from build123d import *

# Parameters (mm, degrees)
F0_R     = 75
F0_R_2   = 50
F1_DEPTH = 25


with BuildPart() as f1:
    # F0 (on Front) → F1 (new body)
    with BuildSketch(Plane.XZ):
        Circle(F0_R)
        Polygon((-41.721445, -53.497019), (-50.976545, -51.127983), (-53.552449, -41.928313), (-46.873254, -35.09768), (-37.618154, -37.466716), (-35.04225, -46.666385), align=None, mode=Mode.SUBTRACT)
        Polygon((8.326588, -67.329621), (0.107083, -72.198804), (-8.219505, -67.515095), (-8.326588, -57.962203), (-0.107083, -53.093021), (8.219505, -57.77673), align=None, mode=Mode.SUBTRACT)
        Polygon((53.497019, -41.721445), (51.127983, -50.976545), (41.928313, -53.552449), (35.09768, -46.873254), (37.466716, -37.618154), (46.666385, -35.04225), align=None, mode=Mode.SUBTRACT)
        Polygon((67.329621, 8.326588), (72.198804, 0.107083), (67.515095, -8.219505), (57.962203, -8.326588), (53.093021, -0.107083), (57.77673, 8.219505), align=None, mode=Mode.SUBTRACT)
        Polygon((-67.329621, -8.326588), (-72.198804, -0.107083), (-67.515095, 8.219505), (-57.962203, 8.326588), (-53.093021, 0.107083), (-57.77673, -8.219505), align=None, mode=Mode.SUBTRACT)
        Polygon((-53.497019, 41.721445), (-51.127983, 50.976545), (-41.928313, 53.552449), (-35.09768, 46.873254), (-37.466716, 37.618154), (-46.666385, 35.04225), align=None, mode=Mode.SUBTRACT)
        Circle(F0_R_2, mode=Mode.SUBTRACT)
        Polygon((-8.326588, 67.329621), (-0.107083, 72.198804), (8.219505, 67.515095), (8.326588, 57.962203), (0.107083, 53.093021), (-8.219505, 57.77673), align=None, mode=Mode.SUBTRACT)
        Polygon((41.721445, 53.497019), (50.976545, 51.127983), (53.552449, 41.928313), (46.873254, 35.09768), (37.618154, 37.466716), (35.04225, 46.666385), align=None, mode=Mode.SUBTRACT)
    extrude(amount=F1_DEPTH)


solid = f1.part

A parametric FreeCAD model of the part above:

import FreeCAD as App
import Part
import Sketcher

V = App.Vector
Q = App.Units.Quantity

doc = App.newDocument("Part")
body = doc.addObject("PartDesign::Body", "Body")

# Sketch on XZ plane
sketch1 = doc.addObject("Sketcher::SketchObject", "Sketch")
body.addObject(sketch1)
sketch1.AttachmentSupport = (doc.XZ_Plane, [""])
sketch1.MapMode = "FlatFace"
sketch1.addGeometry(Part.Circle(V(0, 0, 0), V(0, 0, 1), 75), False)
sketch1.addGeometry(Part.LineSegment(V(-35.04225, -46.666385, 0), V(-41.721445, -53.497019, 0)), False)
sketch1.addGeometry(Part.LineSegment(V(-41.721445, -53.497019, 0), V(-50.976545, -51.127983, 0)), False)
sketch1.addGeometry(Part.LineSegment(V(-50.976545, -51.127983, 0), V(-53.552449, -41.928313, 0)), False)
sketch1.addGeometry(Part.LineSegment(V(-53.552449, -41.928313, 0), V(-46.873254, -35.09768, 0)), False)
sketch1.addGeometry(Part.LineSegment(V(-46.873254, -35.09768, 0), V(-37.618154, -37.466716, 0)), False)
sketch1.addGeometry(Part.LineSegment(V(-37.618154, -37.466716, 0), V(-35.04225, -46.666385, 0)), False)
sketch1.addGeometry(Part.LineSegment(V(8.219505, -57.77673, 0), V(8.326588, -67.329621, 0)), False)
sketch1.addGeometry(Part.LineSegment(V(8.326588, -67.329621, 0), V(0.107083, -72.198804, 0)), False)
sketch1.addGeometry(Part.LineSegment(V(0.107083, -72.198804, 0), V(-8.219505, -67.515095, 0)), False)
sketch1.addGeometry(Part.LineSegment(V(-8.219505, -67.515095, 0), V(-8.326588, -57.962203, 0)), False)
sketch1.addGeometry(Part.LineSegment(V(-8.326588, -57.962203, 0), V(-0.107083, -53.093021, 0)), False)
sketch1.addGeometry(Part.LineSegment(V(-0.107083, -53.093021, 0), V(8.219505, -57.77673, 0)), False)
sketch1.addGeometry(Part.LineSegment(V(46.666385, -35.04225, 0), V(53.497019, -41.721445, 0)), False)
sketch1.addGeometry(Part.LineSegment(V(53.497019, -41.721445, 0), V(51.127983, -50.976545, 0)), False)
sketch1.addGeometry(Part.LineSegment(V(51.127983, -50.976545, 0), V(41.928313, -53.552449, 0)), False)
sketch1.addGeometry(Part.LineSegment(V(41.928313, -53.552449, 0), V(35.09768, -46.873254, 0)), False)
sketch1.addGeometry(Part.LineSegment(V(35.09768, -46.873254, 0), V(37.466716, -37.618154, 0)), False)
sketch1.addGeometry(Part.LineSegment(V(37.466716, -37.618154, 0), V(46.666385, -35.04225, 0)), False)
sketch1.addGeometry(Part.LineSegment(V(-57.77673, -8.219505, 0), V(-67.329621, -8.326588, 0)), False)
sketch1.addGeometry(Part.LineSegment(V(-67.329621, -8.326588, 0), V(-72.198804, -0.107083, 0)), False)
sketch1.addGeometry(Part.LineSegment(V(-72.198804, -0.107083, 0), V(-67.515095, 8.219505, 0)), False)
sketch1.addGeometry(Part.LineSegment(V(-67.515095, 8.219505, 0), V(-57.962203, 8.326588, 0)), False)
sketch1.addGeometry(Part.LineSegment(V(-57.962203, 8.326588, 0), V(-53.093021, 0.107083, 0)), False)
sketch1.addGeometry(Part.LineSegment(V(-53.093021, 0.107083, 0), V(-57.77673, -8.219505, 0)), False)
sketch1.addGeometry(Part.LineSegment(V(-46.666385, 35.04225, 0), V(-53.497019, 41.721445, 0)), False)
sketch1.addGeometry(Part.LineSegment(V(-53.497019, 41.721445, 0), V(-51.127983, 50.976545, 0)), False)
sketch1.addGeometry(Part.LineSegment(V(-51.127983, 50.976545, 0), V(-41.928313, 53.552449, 0)), False)
sketch1.addGeometry(Part.LineSegment(V(-41.928313, 53.552449, 0), V(-35.09768, 46.873254, 0)), False)
sketch1.addGeometry(Part.LineSegment(V(-35.09768, 46.873254, 0), V(-37.466716, 37.618154, 0)), False)
sketch1.addGeometry(Part.LineSegment(V(-37.466716, 37.618154, 0), V(-46.666385, 35.04225, 0)), False)
sketch1.addGeometry(Part.Circle(V(0, 0, 0), V(0, 0, 1), 50), False)
sketch1.addGeometry(Part.LineSegment(V(57.77673, 8.219505, 0), V(67.329621, 8.326588, 0)), False)
sketch1.addGeometry(Part.LineSegment(V(67.329621, 8.326588, 0), V(72.198804, 0.107083, 0)), False)
sketch1.addGeometry(Part.LineSegment(V(72.198804, 0.107083, 0), V(67.515095, -8.219505, 0)), False)
sketch1.addGeometry(Part.LineSegment(V(67.515095, -8.219505, 0), V(57.962203, -8.326588, 0)), False)
sketch1.addGeometry(Part.LineSegment(V(57.962203, -8.326588, 0), V(53.093021, -0.107083, 0)), False)
sketch1.addGeometry(Part.LineSegment(V(53.093021, -0.107083, 0), V(57.77673, 8.219505, 0)), False)
sketch1.addGeometry(Part.LineSegment(V(-8.219505, 57.77673, 0), V(-8.326588, 67.329621, 0)), False)
sketch1.addGeometry(Part.LineSegment(V(-8.326588, 67.329621, 0), V(-0.107083, 72.198804, 0)), False)
sketch1.addGeometry(Part.LineSegment(V(-0.107083, 72.198804, 0), V(8.219505, 67.515095, 0)), False)
sketch1.addGeometry(Part.LineSegment(V(8.219505, 67.515095, 0), V(8.326588, 57.962203, 0)), False)
sketch1.addGeometry(Part.LineSegment(V(8.326588, 57.962203, 0), V(0.107083, 53.093021, 0)), False)
sketch1.addGeometry(Part.LineSegment(V(0.107083, 53.093021, 0), V(-8.219505, 57.77673, 0)), False)
sketch1.addGeometry(Part.LineSegment(V(35.04225, 46.666385, 0), V(41.721445, 53.497019, 0)), False)
sketch1.addGeometry(Part.LineSegment(V(41.721445, 53.497019, 0), V(50.976545, 51.127983, 0)), False)
sketch1.addGeometry(Part.LineSegment(V(50.976545, 51.127983, 0), V(53.552449, 41.928313, 0)), False)
sketch1.addGeometry(Part.LineSegment(V(53.552449, 41.928313, 0), V(46.873254, 35.09768, 0)), False)
sketch1.addGeometry(Part.LineSegment(V(46.873254, 35.09768, 0), V(37.618154, 37.466716, 0)), False)
sketch1.addGeometry(Part.LineSegment(V(37.618154, 37.466716, 0), V(35.04225, 46.666385, 0)), False)
sketch1.addConstraint(Sketcher.Constraint("Coincident", 1, 2, 2, 1))
sketch1.addConstraint(Sketcher.Constraint("Coincident", 2, 2, 3, 1))
sketch1.addConstraint(Sketcher.Constraint("Coincident", 3, 2, 4, 1))
sketch1.addConstraint(Sketcher.Constraint("Coincident", 4, 2, 5, 1))
sketch1.addConstraint(Sketcher.Constraint("Coincident", 5, 2, 6, 1))
sketch1.addConstraint(Sketcher.Constraint("Coincident", 6, 2, 1, 1))
sketch1.addConstraint(Sketcher.Constraint("Coincident", 7, 2, 8, 1))
sketch1.addConstraint(Sketcher.Constraint("Coincident", 8, 2, 9, 1))
sketch1.addConstraint(Sketcher.Constraint("Coincident", 9, 2, 10, 1))
sketch1.addConstraint(Sketcher.Constraint("Coincident", 10, 2, 11, 1))
sketch1.addConstraint(Sketcher.Constraint("Coincident", 11, 2, 12, 1))
sketch1.addConstraint(Sketcher.Constraint("Coincident", 12, 2, 7, 1))
sketch1.addConstraint(Sketcher.Constraint("Coincident", 13, 2, 14, 1))
sketch1.addConstraint(Sketcher.Constraint("Coincident", 14, 2, 15, 1))
sketch1.addConstraint(Sketcher.Constraint("Coincident", 15, 2, 16, 1))
sketch1.addConstraint(Sketcher.Constraint("Coincident", 16, 2, 17, 1))
sketch1.addConstraint(Sketcher.Constraint("Coincident", 17, 2, 18, 1))
sketch1.addConstraint(Sketcher.Constraint("Coincident", 18, 2, 13, 1))
sketch1.addConstraint(Sketcher.Constraint("Coincident", 19, 2, 20, 1))
sketch1.addConstraint(Sketcher.Constraint("Coincident", 20, 2, 21, 1))
sketch1.addConstraint(Sketcher.Constraint("Coincident", 21, 2, 22, 1))
sketch1.addConstraint(Sketcher.Constraint("Coincident", 22, 2, 23, 1))
sketch1.addConstraint(Sketcher.Constraint("Coincident", 23, 2, 24, 1))
sketch1.addConstraint(Sketcher.Constraint("Coincident", 24, 2, 19, 1))
sketch1.addConstraint(Sketcher.Constraint("Coincident", 25, 2, 26, 1))
sketch1.addConstraint(Sketcher.Constraint("Coincident", 26, 2, 27, 1))
sketch1.addConstraint(Sketcher.Constraint("Coincident", 27, 2, 28, 1))
sketch1.addConstraint(Sketcher.Constraint("Coincident", 28, 2, 29, 1))
sketch1.addConstraint(Sketcher.Constraint("Coincident", 29, 2, 30, 1))
sketch1.addConstraint(Sketcher.Constraint("Coincident", 30, 2, 25, 1))
sketch1.addConstraint(Sketcher.Constraint("Coincident", 32, 2, 33, 1))
sketch1.addConstraint(Sketcher.Constraint("Coincident", 33, 2, 34, 1))
sketch1.addConstraint(Sketcher.Constraint("Coincident", 34, 2, 35, 1))
sketch1.addConstraint(Sketcher.Constraint("Coincident", 35, 2, 36, 1))
sketch1.addConstraint(Sketcher.Constraint("Coincident", 36, 2, 37, 1))
sketch1.addConstraint(Sketcher.Constraint("Coincident", 37, 2, 32, 1))
sketch1.addConstraint(Sketcher.Constraint("Coincident", 38, 2, 39, 1))
sketch1.addConstraint(Sketcher.Constraint("Coincident", 39, 2, 40, 1))
sketch1.addConstraint(Sketcher.Constraint("Coincident", 40, 2, 41, 1))
sketch1.addConstraint(Sketcher.Constraint("Coincident", 41, 2, 42, 1))
sketch1.addConstraint(Sketcher.Constraint("Coincident", 42, 2, 43, 1))
sketch1.addConstraint(Sketcher.Constraint("Coincident", 43, 2, 38, 1))
sketch1.addConstraint(Sketcher.Constraint("Coincident", 44, 2, 45, 1))
sketch1.addConstraint(Sketcher.Constraint("Coincident", 45, 2, 46, 1))
sketch1.addConstraint(Sketcher.Constraint("Coincident", 46, 2, 47, 1))
sketch1.addConstraint(Sketcher.Constraint("Coincident", 47, 2, 48, 1))
sketch1.addConstraint(Sketcher.Constraint("Coincident", 48, 2, 49, 1))
sketch1.addConstraint(Sketcher.Constraint("Coincident", 49, 2, 44, 1))
sketch1.addConstraint(Sketcher.Constraint("Coincident", 0, 3, -1, 1))
sketch1.addConstraint(Sketcher.Constraint("Coincident", 31, 3, -1, 1))
sketch1.addConstraint(Sketcher.Constraint("Symmetric", 13, 2, 25, 2, -1, 1))
sketch1.addConstraint(Sketcher.Constraint("Symmetric", 14, 2, 26, 2, -1, 1))
sketch1.addConstraint(Sketcher.Constraint("Symmetric", 15, 2, 27, 2, -1, 1))
sketch1.addConstraint(Sketcher.Constraint("Symmetric", 16, 2, 28, 2, -1, 1))
sketch1.addConstraint(Sketcher.Constraint("Symmetric", 17, 2, 29, 2, -1, 1))
sketch1.addConstraint(Sketcher.Constraint("Symmetric", 18, 2, 30, 2, -1, 1))
sketch1.addConstraint(Sketcher.Constraint("Symmetric", 19, 2, 32, 2, -1, 1))
sketch1.addConstraint(Sketcher.Constraint("Symmetric", 20, 2, 33, 2, -1, 1))
sketch1.addConstraint(Sketcher.Constraint("Symmetric", 21, 2, 34, 2, -1, 1))
sketch1.addConstraint(Sketcher.Constraint("Symmetric", 22, 2, 35, 2, -1, 1))
sketch1.addConstraint(Sketcher.Constraint("Symmetric", 23, 2, 36, 2, -1, 1))
sketch1.addConstraint(Sketcher.Constraint("Symmetric", 24, 2, 37, 2, -1, 1))
sketch1.addConstraint(Sketcher.Constraint("Symmetric", 7, 2, 38, 2, -1, 1))
sketch1.addConstraint(Sketcher.Constraint("Symmetric", 8, 2, 39, 2, -1, 1))
sketch1.addConstraint(Sketcher.Constraint("Symmetric", 9, 2, 40, 2, -1, 1))
sketch1.addConstraint(Sketcher.Constraint("Symmetric", 10, 2, 41, 2, -1, 1))
sketch1.addConstraint(Sketcher.Constraint("Symmetric", 11, 2, 42, 2, -1, 1))
sketch1.addConstraint(Sketcher.Constraint("Symmetric", 12, 2, 43, 2, -1, 1))
sketch1.addConstraint(Sketcher.Constraint("Symmetric", 1, 2, 44, 2, -1, 1))
sketch1.addConstraint(Sketcher.Constraint("Symmetric", 2, 2, 45, 2, -1, 1))
sketch1.addConstraint(Sketcher.Constraint("Symmetric", 3, 2, 46, 2, -1, 1))
sketch1.addConstraint(Sketcher.Constraint("Symmetric", 4, 2, 47, 2, -1, 1))
sketch1.addConstraint(Sketcher.Constraint("Symmetric", 5, 2, 48, 2, -1, 1))
sketch1.addConstraint(Sketcher.Constraint("Symmetric", 6, 2, 49, 2, -1, 1))
sketch1.addConstraint(Sketcher.Constraint("Parallel", 1, 4))
sketch1.addConstraint(Sketcher.Constraint("Parallel", 2, 5))
sketch1.addConstraint(Sketcher.Constraint("Parallel", 3, 6))
sketch1.addConstraint(Sketcher.Constraint("Parallel", 7, 10))
sketch1.addConstraint(Sketcher.Constraint("Parallel", 8, 11))
sketch1.addConstraint(Sketcher.Constraint("Parallel", 9, 12))
sketch1.addConstraint(Sketcher.Constraint("Perpendicular", 4, 13))
sketch1.addConstraint(Sketcher.Constraint("Perpendicular", 5, 14))
sketch1.addConstraint(Sketcher.Constraint("Perpendicular", 6, 15))
sketch1.addConstraint(Sketcher.Constraint("Parallel", 13, 16))
sketch1.addConstraint(Sketcher.Constraint("Parallel", 14, 17))
sketch1.addConstraint(Sketcher.Constraint("Parallel", 15, 18))
sketch1.addConstraint(Sketcher.Constraint("Perpendicular", 10, 19))
sketch1.addConstraint(Sketcher.Constraint("Perpendicular", 11, 20))
sketch1.addConstraint(Sketcher.Constraint("Perpendicular", 12, 21))
sketch1.addConstraint(Sketcher.Constraint("Parallel", 19, 22))
sketch1.addConstraint(Sketcher.Constraint("Parallel", 20, 23))
sketch1.addConstraint(Sketcher.Constraint("Parallel", 21, 24))
sketch1.addConstraint(Sketcher.Constraint("Horizontal", 22, 2, 32, 2))
sketch1.addConstraint(Sketcher.Constraint("Horizontal", 23, 2, 33, 2))
sketch1.addConstraint(Sketcher.Constraint("Vertical", 10, 2, 38, 2))
sketch1.addConstraint(Sketcher.Constraint("Vertical", 11, 2, 39, 2))
sketch1.addConstraint(Sketcher.Constraint("Equal", 1, 2))
sketch1.addConstraint(Sketcher.Constraint("Equal", 2, 3))
sketch1.addConstraint(Sketcher.Constraint("Equal", 3, 4))
sketch1.addConstraint(Sketcher.Constraint("Equal", 6, 7))
sketch1.addConstraint(Sketcher.Constraint("Equal", 7, 8))
sketch1.addConstraint(Sketcher.Constraint("Equal", 8, 9))
sketch1.addConstraint(Sketcher.Constraint("Equal", 12, 13))
sketch1.addConstraint(Sketcher.Constraint("Equal", 13, 14))
sketch1.addConstraint(Sketcher.Constraint("Equal", 14, 15))
sketch1.addConstraint(Sketcher.Constraint("Equal", 15, 16))
sketch1.addConstraint(Sketcher.Constraint("Equal", 18, 19))
sketch1.addConstraint(Sketcher.Constraint("Equal", 19, 20))
sketch1.addConstraint(Sketcher.Constraint("Equal", 20, 21))
sketch1.addConstraint(Sketcher.Constraint("Diameter", 0, Q("150 mm")))
sketch1.addConstraint(Sketcher.Constraint("Diameter", 31, Q("100 mm")))
sketch1.addConstraint(Sketcher.Constraint("DistanceX", 25, 2, 23, 2, Q("0.403998 mm")))
sketch1.addConstraint(Sketcher.Constraint("DistanceY", 42, 2, 44, 2, Q("0.403998 mm")))
sketch1.addConstraint(Sketcher.Constraint("DistanceX", 2, 2, 1, 2, Q("9.2551 mm")))
sketch1.addConstraint(Sketcher.Constraint("DistanceY", 2, 2, 6, 2, Q("4.461598 mm")))
sketch1.addConstraint(Sketcher.Constraint("DistanceX", 3, 2, 6, 2, Q("18.510199 mm")))
sketch1.addConstraint(Sketcher.Constraint("DistanceY", 8, 2, 10, 2, Q("14.236601 mm")))
sketch1.addConstraint(Sketcher.Constraint("DistanceX", 8, 2, 14, 2, Q("51.0209 mm")))
sketch1.addConstraint(Sketcher.Constraint("DistanceY", 2, 2, 20, 2, Q("51.0209 mm")))
sketch1.addConstraint(Sketcher.Constraint("Distance", 1, Q("9.553492 mm")))
sketch1.addConstraint(Sketcher.Constraint("DistanceY", 1, 2, -1, 1, Q("53.497019 mm")))
sketch1.addConstraint(Sketcher.Constraint("DistanceX", 3, 2, -1, 1, Q("53.552449 mm")))
sketch1.addConstraint(Sketcher.Constraint("DistanceY", 15, 2, -1, 1, Q("53.552449 mm")))
sketch1.addConstraint(Sketcher.Constraint("DistanceX", 6, 2, 7, 2, Q("43.368838 mm")))
pad1 = doc.addObject("PartDesign::Pad", "Pad")
body.addObject(pad1)
pad1.Profile = sketch1
pad1.Length = 25

doc.recompute()
